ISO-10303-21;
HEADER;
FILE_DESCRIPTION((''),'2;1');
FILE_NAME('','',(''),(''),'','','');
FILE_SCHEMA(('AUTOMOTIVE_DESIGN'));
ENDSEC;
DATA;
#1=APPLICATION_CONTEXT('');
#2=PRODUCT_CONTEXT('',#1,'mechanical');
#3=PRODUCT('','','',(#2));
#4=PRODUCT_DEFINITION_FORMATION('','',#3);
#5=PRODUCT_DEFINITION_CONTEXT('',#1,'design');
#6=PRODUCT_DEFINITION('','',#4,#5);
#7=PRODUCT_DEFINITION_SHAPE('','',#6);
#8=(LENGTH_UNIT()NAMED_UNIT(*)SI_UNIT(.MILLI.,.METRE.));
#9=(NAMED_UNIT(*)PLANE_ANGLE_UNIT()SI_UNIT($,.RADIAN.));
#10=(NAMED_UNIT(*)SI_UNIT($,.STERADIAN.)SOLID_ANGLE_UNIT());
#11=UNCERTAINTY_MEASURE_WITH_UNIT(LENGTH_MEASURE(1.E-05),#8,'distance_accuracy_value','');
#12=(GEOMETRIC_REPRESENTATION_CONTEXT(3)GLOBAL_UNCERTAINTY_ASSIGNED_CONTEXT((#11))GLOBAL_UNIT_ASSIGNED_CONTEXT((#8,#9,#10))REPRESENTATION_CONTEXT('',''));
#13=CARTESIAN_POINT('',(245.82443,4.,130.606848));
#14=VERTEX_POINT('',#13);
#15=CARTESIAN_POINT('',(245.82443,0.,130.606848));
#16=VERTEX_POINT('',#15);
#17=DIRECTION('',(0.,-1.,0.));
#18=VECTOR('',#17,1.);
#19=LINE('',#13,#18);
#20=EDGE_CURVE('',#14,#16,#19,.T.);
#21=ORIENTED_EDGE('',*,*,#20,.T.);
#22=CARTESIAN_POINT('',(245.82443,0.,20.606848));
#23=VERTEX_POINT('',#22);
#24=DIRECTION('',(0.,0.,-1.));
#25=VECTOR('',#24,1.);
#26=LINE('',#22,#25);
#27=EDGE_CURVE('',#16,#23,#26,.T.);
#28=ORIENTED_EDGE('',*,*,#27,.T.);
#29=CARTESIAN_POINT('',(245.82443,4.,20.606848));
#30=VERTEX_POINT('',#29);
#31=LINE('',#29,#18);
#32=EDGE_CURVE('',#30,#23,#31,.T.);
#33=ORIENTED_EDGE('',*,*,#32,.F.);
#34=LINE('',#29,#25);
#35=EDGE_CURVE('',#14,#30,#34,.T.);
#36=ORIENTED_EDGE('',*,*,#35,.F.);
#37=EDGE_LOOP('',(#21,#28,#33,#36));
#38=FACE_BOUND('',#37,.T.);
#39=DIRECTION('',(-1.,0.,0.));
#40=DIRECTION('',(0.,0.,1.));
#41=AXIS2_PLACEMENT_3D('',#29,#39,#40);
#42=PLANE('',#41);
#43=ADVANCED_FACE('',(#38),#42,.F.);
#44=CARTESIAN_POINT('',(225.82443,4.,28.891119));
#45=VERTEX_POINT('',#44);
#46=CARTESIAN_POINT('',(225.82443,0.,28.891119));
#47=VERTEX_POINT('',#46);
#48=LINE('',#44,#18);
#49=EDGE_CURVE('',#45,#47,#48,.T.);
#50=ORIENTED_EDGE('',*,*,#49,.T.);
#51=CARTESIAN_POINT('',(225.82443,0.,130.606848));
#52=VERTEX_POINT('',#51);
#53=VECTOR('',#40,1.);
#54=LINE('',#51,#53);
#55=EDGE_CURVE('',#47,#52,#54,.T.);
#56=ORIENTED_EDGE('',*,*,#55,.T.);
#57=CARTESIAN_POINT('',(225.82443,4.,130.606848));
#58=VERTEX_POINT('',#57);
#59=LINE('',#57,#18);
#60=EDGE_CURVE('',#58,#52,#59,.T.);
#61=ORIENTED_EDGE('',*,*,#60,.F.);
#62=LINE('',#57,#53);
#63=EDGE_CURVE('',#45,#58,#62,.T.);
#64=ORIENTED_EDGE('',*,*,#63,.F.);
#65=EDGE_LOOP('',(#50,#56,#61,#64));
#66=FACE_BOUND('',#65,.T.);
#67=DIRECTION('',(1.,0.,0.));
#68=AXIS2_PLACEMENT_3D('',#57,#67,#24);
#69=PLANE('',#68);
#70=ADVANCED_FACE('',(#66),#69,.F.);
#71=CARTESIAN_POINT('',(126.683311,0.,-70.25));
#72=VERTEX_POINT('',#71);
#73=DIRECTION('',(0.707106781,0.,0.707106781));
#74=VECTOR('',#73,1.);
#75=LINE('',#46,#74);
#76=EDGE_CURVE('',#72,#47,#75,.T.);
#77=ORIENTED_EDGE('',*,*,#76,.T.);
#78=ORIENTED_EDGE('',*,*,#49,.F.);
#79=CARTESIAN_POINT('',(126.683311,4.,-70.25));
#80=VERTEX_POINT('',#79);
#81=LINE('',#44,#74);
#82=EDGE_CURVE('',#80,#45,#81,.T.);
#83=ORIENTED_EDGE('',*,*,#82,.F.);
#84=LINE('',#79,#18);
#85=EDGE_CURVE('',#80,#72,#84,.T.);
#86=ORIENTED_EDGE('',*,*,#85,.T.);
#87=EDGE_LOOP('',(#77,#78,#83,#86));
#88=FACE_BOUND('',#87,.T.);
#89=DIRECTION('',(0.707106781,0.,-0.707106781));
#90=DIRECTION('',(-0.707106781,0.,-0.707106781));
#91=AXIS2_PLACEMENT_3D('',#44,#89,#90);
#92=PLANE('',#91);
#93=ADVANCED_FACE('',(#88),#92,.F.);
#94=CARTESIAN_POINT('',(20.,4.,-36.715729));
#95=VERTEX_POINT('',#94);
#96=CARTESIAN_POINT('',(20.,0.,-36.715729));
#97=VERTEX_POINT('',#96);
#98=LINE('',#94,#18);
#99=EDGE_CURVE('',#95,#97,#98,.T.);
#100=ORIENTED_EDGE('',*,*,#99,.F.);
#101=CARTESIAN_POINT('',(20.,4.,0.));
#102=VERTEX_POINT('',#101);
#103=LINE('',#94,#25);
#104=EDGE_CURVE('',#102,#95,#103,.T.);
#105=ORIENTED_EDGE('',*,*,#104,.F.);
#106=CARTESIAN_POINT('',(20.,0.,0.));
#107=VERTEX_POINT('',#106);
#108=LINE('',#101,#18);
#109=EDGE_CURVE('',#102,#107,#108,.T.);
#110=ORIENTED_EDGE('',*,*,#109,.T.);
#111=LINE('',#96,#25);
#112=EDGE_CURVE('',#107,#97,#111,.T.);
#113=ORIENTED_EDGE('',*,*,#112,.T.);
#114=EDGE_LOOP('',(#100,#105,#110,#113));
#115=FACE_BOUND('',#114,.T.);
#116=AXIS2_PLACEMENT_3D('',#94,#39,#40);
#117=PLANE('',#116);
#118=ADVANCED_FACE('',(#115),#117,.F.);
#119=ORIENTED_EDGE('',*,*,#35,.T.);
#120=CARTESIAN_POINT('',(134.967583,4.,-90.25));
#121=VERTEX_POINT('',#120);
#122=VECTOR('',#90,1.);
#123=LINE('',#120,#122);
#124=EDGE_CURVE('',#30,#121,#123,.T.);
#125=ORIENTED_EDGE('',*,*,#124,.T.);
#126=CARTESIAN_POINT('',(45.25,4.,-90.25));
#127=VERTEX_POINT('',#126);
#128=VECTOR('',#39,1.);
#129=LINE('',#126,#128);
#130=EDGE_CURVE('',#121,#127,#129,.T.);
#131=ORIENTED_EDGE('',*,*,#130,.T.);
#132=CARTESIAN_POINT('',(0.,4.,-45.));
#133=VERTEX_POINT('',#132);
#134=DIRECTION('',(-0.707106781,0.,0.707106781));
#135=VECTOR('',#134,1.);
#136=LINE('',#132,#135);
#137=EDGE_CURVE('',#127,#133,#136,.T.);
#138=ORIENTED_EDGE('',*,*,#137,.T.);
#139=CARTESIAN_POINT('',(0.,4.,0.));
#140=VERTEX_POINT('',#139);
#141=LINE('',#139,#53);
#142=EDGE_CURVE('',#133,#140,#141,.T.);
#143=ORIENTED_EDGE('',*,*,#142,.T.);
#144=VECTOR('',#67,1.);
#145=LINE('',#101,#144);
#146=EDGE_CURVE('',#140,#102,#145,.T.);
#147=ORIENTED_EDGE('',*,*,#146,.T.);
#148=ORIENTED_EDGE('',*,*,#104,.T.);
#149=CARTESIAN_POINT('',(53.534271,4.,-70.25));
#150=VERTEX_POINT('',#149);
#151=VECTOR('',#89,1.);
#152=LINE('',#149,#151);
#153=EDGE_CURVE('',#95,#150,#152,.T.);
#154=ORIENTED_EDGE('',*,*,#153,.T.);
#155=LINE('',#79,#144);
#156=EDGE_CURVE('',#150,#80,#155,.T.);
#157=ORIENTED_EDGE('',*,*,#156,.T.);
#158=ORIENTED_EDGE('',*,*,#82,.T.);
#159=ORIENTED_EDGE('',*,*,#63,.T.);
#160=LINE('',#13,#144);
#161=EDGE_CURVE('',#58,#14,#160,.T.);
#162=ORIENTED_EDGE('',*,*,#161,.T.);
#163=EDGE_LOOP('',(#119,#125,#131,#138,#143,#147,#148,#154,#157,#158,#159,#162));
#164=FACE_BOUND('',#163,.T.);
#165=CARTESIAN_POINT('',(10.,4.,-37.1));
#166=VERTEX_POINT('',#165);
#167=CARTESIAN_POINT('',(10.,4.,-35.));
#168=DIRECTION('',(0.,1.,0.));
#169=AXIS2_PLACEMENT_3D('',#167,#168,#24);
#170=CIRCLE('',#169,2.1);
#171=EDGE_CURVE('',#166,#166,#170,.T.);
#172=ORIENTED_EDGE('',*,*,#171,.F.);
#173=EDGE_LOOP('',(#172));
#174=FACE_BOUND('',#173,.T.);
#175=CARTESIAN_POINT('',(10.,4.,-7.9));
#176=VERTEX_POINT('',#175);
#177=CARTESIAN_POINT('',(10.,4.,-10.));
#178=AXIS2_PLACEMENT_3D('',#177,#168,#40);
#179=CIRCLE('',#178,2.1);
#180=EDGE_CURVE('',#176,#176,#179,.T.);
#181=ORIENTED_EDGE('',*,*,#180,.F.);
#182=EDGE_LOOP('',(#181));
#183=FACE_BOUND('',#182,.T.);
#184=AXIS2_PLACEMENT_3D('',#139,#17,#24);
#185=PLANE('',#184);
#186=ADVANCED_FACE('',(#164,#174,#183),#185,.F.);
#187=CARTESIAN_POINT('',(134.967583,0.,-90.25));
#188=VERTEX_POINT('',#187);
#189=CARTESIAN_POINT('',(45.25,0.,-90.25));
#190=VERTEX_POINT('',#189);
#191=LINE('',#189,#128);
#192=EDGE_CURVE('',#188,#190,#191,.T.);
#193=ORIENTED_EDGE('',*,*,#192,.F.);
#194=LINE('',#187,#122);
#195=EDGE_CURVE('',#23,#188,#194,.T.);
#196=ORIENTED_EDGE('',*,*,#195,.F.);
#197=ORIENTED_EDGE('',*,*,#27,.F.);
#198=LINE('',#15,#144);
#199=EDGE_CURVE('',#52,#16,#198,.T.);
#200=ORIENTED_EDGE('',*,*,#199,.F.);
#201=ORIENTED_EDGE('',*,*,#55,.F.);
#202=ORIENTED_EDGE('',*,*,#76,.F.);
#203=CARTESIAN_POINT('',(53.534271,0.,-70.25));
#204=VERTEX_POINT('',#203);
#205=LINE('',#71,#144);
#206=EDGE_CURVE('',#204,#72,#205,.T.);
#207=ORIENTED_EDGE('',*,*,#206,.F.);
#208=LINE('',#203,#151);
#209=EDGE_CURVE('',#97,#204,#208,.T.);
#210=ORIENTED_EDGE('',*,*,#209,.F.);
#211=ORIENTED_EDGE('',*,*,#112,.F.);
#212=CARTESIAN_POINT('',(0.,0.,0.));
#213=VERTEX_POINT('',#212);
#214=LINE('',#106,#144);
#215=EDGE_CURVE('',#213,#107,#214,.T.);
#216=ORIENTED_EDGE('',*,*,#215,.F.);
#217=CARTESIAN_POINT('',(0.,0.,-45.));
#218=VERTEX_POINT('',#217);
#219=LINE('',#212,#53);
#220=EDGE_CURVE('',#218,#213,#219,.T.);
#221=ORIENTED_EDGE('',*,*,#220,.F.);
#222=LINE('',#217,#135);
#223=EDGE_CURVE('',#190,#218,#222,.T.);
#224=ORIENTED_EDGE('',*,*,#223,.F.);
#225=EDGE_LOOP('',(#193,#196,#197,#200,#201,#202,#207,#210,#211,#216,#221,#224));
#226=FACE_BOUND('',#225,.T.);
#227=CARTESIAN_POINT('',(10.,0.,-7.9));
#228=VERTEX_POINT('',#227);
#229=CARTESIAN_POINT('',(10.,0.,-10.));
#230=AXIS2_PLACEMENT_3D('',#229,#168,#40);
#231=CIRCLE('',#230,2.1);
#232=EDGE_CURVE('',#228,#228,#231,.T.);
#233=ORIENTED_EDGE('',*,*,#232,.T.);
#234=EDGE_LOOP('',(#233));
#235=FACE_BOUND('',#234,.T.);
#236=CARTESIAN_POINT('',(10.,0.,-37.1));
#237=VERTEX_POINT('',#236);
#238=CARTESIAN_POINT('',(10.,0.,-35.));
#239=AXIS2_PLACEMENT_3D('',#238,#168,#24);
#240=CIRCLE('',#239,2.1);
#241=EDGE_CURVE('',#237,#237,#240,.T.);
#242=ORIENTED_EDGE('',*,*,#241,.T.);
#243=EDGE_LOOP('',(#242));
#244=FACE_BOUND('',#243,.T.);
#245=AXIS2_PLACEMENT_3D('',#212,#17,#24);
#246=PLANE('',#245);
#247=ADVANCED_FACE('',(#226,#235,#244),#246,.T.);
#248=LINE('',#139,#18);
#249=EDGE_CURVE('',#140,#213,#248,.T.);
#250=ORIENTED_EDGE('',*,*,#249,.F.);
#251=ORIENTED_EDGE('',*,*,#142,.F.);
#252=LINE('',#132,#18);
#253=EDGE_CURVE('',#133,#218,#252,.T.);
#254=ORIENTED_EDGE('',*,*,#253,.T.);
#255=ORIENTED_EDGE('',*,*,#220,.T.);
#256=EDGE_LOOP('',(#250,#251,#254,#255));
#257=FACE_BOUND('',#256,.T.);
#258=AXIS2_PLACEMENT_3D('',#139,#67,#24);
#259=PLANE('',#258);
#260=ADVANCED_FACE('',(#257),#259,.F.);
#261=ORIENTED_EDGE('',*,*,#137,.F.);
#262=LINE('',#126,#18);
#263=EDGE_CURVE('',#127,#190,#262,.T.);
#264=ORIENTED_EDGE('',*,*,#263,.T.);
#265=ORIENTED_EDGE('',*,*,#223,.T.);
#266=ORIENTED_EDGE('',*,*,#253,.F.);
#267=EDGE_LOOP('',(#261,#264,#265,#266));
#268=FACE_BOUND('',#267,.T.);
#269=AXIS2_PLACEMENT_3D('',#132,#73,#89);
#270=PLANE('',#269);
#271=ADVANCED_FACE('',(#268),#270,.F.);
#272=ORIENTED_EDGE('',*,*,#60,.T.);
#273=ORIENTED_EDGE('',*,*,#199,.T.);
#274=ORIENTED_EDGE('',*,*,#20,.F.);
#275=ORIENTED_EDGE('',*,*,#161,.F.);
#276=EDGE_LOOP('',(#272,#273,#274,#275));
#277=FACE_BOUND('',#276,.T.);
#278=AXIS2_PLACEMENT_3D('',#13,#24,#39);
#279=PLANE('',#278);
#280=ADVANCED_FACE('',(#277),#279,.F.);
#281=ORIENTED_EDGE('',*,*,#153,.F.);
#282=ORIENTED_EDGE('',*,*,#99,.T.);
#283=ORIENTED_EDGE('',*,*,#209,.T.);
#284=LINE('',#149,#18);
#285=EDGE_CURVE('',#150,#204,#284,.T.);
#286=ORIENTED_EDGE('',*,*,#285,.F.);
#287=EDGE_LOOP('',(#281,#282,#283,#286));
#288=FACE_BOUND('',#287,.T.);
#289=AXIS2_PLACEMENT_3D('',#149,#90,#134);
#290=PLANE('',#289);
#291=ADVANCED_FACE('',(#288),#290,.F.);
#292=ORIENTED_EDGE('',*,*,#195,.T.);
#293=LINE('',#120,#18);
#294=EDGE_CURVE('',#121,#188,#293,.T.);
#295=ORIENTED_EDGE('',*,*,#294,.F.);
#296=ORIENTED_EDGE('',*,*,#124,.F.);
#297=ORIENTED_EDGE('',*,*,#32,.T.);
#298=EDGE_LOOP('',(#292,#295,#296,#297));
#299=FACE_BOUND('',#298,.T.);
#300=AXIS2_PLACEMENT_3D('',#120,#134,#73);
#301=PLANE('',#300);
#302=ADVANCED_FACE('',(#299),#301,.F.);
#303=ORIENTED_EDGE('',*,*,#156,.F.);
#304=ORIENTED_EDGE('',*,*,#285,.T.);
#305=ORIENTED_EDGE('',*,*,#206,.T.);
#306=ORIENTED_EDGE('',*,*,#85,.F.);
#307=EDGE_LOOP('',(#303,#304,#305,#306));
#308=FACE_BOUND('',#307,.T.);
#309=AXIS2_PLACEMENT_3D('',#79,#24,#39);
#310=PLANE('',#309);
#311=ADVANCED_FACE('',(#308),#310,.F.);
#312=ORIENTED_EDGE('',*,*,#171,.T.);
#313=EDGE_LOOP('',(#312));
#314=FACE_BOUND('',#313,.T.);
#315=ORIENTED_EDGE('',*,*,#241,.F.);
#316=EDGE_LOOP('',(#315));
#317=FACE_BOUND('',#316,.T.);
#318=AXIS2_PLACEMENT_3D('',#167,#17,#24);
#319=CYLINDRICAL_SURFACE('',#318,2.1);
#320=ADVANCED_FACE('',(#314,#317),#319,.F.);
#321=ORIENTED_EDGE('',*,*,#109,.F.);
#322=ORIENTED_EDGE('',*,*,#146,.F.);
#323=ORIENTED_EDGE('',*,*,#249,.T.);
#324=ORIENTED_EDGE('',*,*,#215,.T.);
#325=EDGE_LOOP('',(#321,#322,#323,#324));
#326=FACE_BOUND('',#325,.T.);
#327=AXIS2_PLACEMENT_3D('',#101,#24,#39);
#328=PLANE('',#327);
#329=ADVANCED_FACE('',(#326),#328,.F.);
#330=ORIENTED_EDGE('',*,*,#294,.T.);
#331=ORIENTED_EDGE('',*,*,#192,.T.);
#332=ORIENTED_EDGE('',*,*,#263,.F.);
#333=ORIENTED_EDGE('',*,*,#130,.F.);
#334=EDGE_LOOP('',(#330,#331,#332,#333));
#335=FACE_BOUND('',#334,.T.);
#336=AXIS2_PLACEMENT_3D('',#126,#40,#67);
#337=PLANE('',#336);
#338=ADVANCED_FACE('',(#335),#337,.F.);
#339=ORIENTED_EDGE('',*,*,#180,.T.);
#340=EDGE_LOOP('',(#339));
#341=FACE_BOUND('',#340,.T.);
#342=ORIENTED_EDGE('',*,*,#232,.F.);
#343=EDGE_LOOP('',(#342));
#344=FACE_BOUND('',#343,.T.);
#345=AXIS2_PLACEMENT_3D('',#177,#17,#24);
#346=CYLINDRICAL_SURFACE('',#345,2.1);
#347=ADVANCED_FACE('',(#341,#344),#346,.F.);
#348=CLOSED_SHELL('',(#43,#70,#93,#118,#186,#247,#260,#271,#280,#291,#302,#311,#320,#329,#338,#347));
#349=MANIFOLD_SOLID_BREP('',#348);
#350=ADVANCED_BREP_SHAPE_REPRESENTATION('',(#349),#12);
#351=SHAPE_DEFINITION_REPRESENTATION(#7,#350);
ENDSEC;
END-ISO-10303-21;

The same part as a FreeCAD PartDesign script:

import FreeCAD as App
import Part
import Sketcher
Q = App.Units.Quantity


def add_polygon(sketch, points):
    """Adds a closed chain of lines whose ends are joined by coincident constraints."""
    first, n = sketch.GeometryCount, len(points)
    for a, b in zip(points, points[1:] + points[:1]):
        sketch.addGeometry(Part.LineSegment(App.Vector(*a, 0), App.Vector(*b, 0)), False)
    for i in range(n):
        sketch.addConstraint(Sketcher.Constraint("Coincident", first + i, 2, first + (i + 1) % n, 1))

doc = App.newDocument("Part")
body = doc.addObject("PartDesign::Body", "Body")

# Sketch on XZ plane
sketch1 = body.newObject("Sketcher::SketchObject", "Sketch")
sketch1.AttachmentSupport = (doc.getObject("XZ_Plane"), [""])
sketch1.MapMode = "FlatFace"
add_polygon(sketch1, [(0, 0), (20, 0), (20, -36.7), (53.5, -70.2), (126.7, -70.2), (225.8, 28.9), (225.8, 130.6), (245.8, 130.6), (245.8, 20.6), (135, -90.2), (45.2, -90.2), (0, -45)])  # lines 0-11
sketch1.addGeometry(Part.Circle(App.Vector(10, -10, 0), App.Vector(0, 0, 1), 2.1), False)  # 12
sketch1.addGeometry(Part.Circle(App.Vector(10, -35, 0), App.Vector(0, 0, 1), 2.1), False)  # 13
sketch1.addConstraint(Sketcher.Constraint("Horizontal", 0))
sketch1.addConstraint(Sketcher.Constraint("Vertical", 1))
sketch1.addConstraint(Sketcher.Constraint("Horizontal", 3))
sketch1.addConstraint(Sketcher.Constraint("Vertical", 5))
sketch1.addConstraint(Sketcher.Constraint("Horizontal", 6))
sketch1.addConstraint(Sketcher.Constraint("Vertical", 7))
sketch1.addConstraint(Sketcher.Constraint("Horizontal", 9))
sketch1.addConstraint(Sketcher.Constraint("Vertical", 11))
sketch1.addConstraint(Sketcher.Constraint("Coincident", 11, 2, -1, 1))
sketch1.addConstraint(Sketcher.Constraint("Equal", 12, 13))
sketch1.addConstraint(Sketcher.Constraint("Perpendicular", 2, 4))
sketch1.addConstraint(Sketcher.Constraint("Parallel", 4, 8))
sketch1.addConstraint(Sketcher.Constraint("Perpendicular", 8, 10))
sketch1.addConstraint(Sketcher.Constraint("Vertical", 12, 3, 13, 3))
sketch1.addConstraint(Sketcher.Constraint("Equal", 0, 6))
sketch1.addConstraint(Sketcher.Constraint("Diameter", 12, Q("4.2 mm")))
sketch1.addConstraint(Sketcher.Constraint("DistanceX", 0, 1, 0, 2, Q("20 mm")))
sketch1.addConstraint(Sketcher.Constraint("DistanceY", 7, 2, 7, 1, Q("110 mm")))
sketch1.addConstraint(Sketcher.Constraint("DistanceY", 11, 1, 11, 2, Q("45 mm")))
sketch1.addConstraint(Sketcher.Constraint("Angle", 2, Q("-45 deg")))
sketch1.addConstraint(Sketcher.Constraint("DistanceX", -1, 1, 12, 3, Q("10 mm")))
sketch1.addConstraint(Sketcher.Constraint("DistanceY", 12, 3, -1, 1, Q("10 mm")))
sketch1.addConstraint(Sketcher.Constraint("DistanceY", 13, 3, -1, 1, Q("35 mm")))
sketch1.addConstraint(Sketcher.Constraint("DistanceY", 8, 2, 3, 2, Q("20 mm")))
sketch1.addConstraint(Sketcher.Constraint("DistanceY", 2, 2, -1, 1, Q("70.25 mm")))
sketch1.addConstraint(Sketcher.Constraint("DistanceX", 3, 1, 3, 2, Q("73.14904 mm")))
sketch1.addConstraint(Sketcher.Constraint("DistanceY", 1, 2, 1, 1, Q("36.715729 mm")))
sketch1.addConstraint(Sketcher.Constraint("DistanceY", 5, 1, 5, 2, Q("101.715729 mm")))
sketch1.addConstraint(Sketcher.Constraint("DistanceX", -1, 1, 4, 2, Q("225.82443 mm")))
pad1 = body.newObject("PartDesign::Pad", "Pad")
pad1.Profile = sketch1
pad1.Length = 4
pad1.Reversed = True

doc.recompute()
